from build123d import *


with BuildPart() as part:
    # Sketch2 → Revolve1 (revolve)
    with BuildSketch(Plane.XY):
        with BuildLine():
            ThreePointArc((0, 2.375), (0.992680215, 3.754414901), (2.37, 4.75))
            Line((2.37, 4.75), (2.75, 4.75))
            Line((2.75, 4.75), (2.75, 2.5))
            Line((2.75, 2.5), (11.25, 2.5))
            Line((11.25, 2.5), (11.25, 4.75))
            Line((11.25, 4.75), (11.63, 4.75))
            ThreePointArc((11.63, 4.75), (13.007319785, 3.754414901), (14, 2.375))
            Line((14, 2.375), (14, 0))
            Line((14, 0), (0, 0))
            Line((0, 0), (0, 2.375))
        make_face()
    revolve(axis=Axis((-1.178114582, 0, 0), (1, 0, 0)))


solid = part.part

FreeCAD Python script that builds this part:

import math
import FreeCAD as App
import Part
import Sketcher
from FreeCAD import Vector
Q = App.Units.Quantity

doc = App.newDocument("Part")
body = doc.addObject("PartDesign::Body", "Body")

sketch1 = body.newObject("Sketcher::SketchObject", "Sketch")
sketch1.AttachmentSupport = (doc.getObject("XY_Plane"), [""])
sketch1.MapMode = "FlatFace"
sketch1.addGeometry([
    Part.ArcOfCircle(Part.Circle(Vector(4.76, 0, 0), Vector(0, 0, 1), 5.32), math.radians(117), math.radians(153)),
    Part.LineSegment(Vector(0, 2.38, 0), Vector(0, 0, 0)),
    Part.LineSegment(Vector(0, 0, 0), Vector(14, 0, 0)),
    Part.LineSegment(Vector(14, 0, 0), Vector(14, 2.38, 0)),
    Part.ArcOfCircle(Part.Circle(Vector(9.24, 0, 0), Vector(0, 0, 1), 5.32), math.radians(27), math.radians(63)),
    Part.LineSegment(Vector(11.63, 4.75, 0), Vector(11.25, 4.75, 0)),
    Part.LineSegment(Vector(11.25, 4.75, 0), Vector(11.25, 2.5, 0)),
    Part.LineSegment(Vector(11.25, 2.5, 0), Vector(2.75, 2.5, 0)),
    Part.LineSegment(Vector(2.75, 2.5, 0), Vector(2.75, 4.75, 0)),
    Part.LineSegment(Vector(2.75, 4.75, 0), Vector(2.37, 4.75, 0)),
], False)
sketch1.addConstraint([
    Sketcher.Constraint("Coincident", 0, 2, 1, 1),
    Sketcher.Constraint("Coincident", 1, 2, 2, 1),
    Sketcher.Constraint("Coincident", 2, 2, 3, 1),
    Sketcher.Constraint("Coincident", 3, 2, 4, 1),
    Sketcher.Constraint("Coincident", 4, 2, 5, 1),
    Sketcher.Constraint("Coincident", 5, 2, 6, 1),
    Sketcher.Constraint("Coincident", 6, 2, 7, 1),
    Sketcher.Constraint("Coincident", 7, 2, 8, 1),
    Sketcher.Constraint("Coincident", 8, 2, 9, 1),
    Sketcher.Constraint("Coincident", 9, 2, 0, 1),
    Sketcher.Constraint("Vertical", 1),
    Sketcher.Constraint("Horizontal", 2),
    Sketcher.Constraint("Vertical", 3),
    Sketcher.Constraint("Horizontal", 5),
    Sketcher.Constraint("Vertical", 6),
    Sketcher.Constraint("Horizontal", 7),
    Sketcher.Constraint("Vertical", 8),
    Sketcher.Constraint("Horizontal", 9),
    Sketcher.Constraint("Coincident", 1, 2, -1, 1),
    Sketcher.Constraint("Equal", 0, 4),
    Sketcher.Constraint("PointOnObject", 0, 3, -1),
    Sketcher.Constraint("PointOnObject", 4, 3, -1),
    Sketcher.Constraint("Horizontal", 0, 2, 3, 2),
    Sketcher.Constraint("Horizontal", 5, 2, 8, 2),
    Sketcher.Constraint("Equal", 5, 9),
    Sketcher.Constraint("DistanceX", 2, 1, 2, 2, Q("14 mm")),
    Sketcher.Constraint("DistanceX", 7, 2, 7, 1, Q("8.5 mm")),
    Sketcher.Constraint("DistanceX", 5, 2, 5, 1, Q("0.38 mm")),
    Sketcher.Constraint("DistanceY", 6, 2, 6, 1, Q("2.25 mm")),
    Sketcher.Constraint("DistanceY", -1, 1, 6, 2, Q("2.5 mm")),
    Sketcher.Constraint("DistanceY", 1, 2, 1, 1, Q("2.375 mm")),
])
revolution = body.newObject("PartDesign::Revolution", "Revolution")
revolution.Profile = sketch1
revolution.ReferenceAxis = (sketch1, ["H_Axis"])
revolution.Angle = 360

doc.recompute()
